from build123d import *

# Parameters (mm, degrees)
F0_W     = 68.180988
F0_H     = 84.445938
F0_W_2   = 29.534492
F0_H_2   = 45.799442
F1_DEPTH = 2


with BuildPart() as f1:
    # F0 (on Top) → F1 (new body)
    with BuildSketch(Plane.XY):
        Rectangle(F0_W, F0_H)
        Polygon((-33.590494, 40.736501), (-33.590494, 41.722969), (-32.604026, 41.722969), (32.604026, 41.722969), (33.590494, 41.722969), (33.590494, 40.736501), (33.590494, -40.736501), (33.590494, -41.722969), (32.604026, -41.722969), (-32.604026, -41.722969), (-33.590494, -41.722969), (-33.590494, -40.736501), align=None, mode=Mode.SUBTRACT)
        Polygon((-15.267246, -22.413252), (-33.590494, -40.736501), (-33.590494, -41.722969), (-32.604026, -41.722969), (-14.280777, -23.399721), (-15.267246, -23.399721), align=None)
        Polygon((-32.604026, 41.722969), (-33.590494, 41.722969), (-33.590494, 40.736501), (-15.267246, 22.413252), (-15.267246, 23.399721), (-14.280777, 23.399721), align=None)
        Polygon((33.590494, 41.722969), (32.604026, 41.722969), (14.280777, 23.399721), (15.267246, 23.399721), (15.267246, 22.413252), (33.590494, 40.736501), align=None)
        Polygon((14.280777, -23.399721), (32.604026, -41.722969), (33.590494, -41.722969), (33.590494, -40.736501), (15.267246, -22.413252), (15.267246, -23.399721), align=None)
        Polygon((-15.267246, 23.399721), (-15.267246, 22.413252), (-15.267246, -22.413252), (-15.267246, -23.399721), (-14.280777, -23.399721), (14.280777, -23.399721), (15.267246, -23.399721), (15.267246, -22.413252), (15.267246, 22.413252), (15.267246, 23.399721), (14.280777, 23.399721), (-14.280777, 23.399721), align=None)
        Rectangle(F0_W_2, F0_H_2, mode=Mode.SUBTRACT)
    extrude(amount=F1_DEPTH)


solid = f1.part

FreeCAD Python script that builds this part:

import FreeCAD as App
import Part
import Sketcher


def add_polygon(sketch, points):
    """Adds a closed chain of lines whose ends are joined by coincident constraints."""
    first, n = sketch.GeometryCount, len(points)
    for a, b in zip(points, points[1:] + points[:1]):
        sketch.addGeometry(Part.LineSegment(App.Vector(*a, 0), App.Vector(*b, 0)), False)
    for i in range(n):
        sketch.addConstraint(Sketcher.Constraint("Coincident", first + i, 2, first + (i + 1) % n, 1))

doc = App.newDocument("Part")
params = doc.addObject("Spreadsheet::Sheet", "Params")
for row, (alias, value) in enumerate([
    ("pad1_length", "2 mm"),
], start=1):
    params.set(f"A{row}", alias)
    params.set(f"B{row}", "=" + value)
    params.setAlias(f"B{row}", alias)

body = doc.addObject("PartDesign::Body", "Body")

# Sketch on XY plane
sketch1 = body.newObject("Sketcher::SketchObject", "Sketch")
sketch1.AttachmentSupport = (doc.getObject("XY_Plane"), [""])
sketch1.MapMode = "FlatFace"
add_polygon(sketch1, [(-34, 42), (-34, -42), (34, -42), (34, 42)])  # lines 0-3
add_polygon(sketch1, [(14, -23), (33, -42), (-33, -42), (-14, -23)])  # lines 4-7
add_polygon(sketch1, [(-34, -41), (-34, 41), (-15, 22), (-15, -22)])  # lines 8-11
add_polygon(sketch1, [(15, -23), (-15, -23), (-15, 23), (15, 23)])  # lines 12-15
add_polygon(sketch1, [(15, 22), (34, 41), (34, -41), (15, -22)])  # lines 16-19
add_polygon(sketch1, [(-14, 23), (-33, 42), (33, 42), (14, 23)])  # lines 20-23
sketch1.addConstraint([
    Sketcher.Constraint("Vertical", 0),
    Sketcher.Constraint("Horizontal", 1),
    Sketcher.Constraint("Vertical", 2),
    Sketcher.Constraint("Horizontal", 3),
    Sketcher.Constraint("Horizontal", 5),
    Sketcher.Constraint("Horizontal", 7),
    Sketcher.Constraint("Vertical", 8),
    Sketcher.Constraint("Vertical", 10),
    Sketcher.Constraint("Horizontal", 12),
    Sketcher.Constraint("Vertical", 13),
    Sketcher.Constraint("Horizontal", 14),
    Sketcher.Constraint("Vertical", 15),
    Sketcher.Constraint("Vertical", 17),
    Sketcher.Constraint("Vertical", 19),
    Sketcher.Constraint("Horizontal", 21),
    Sketcher.Constraint("Horizontal", 23),
    Sketcher.Constraint("Symmetric", 0, 2, 2, 2, -1, 1),
    Sketcher.Constraint("Symmetric", 12, 2, 14, 2, -1, 1),
    Sketcher.Constraint("Symmetric", 11, 2, 16, 2, -1, 1),
    Sketcher.Constraint("Symmetric", 9, 2, 18, 2, -1, 1),
    Sketcher.Constraint("Symmetric", 4, 2, 20, 2, -1, 1),
    Sketcher.Constraint("Symmetric", 6, 2, 22, 2, -1, 1),
    Sketcher.Constraint("Perpendicular", 4, 6),
    Sketcher.Constraint("Perpendicular", 6, 9),
    Sketcher.Constraint("Perpendicular", 9, 11),
    Sketcher.Constraint("Parallel", 11, 16),
    Sketcher.Constraint("Perpendicular", 16, 18),
    Sketcher.Constraint("Parallel", 18, 20),
    Sketcher.Constraint("Perpendicular", 20, 22),
    Sketcher.Constraint("Horizontal", 8, 2, 16, 2),
    Sketcher.Constraint("Horizontal", 10, 2, 18, 2),
    Sketcher.Constraint("Vertical", 5, 2, 20, 2),
    Sketcher.Constraint("Equal", 6, 9),
    Sketcher.Constraint("DistanceY", 1, 2, 4, 2, 0.5),
    Sketcher.Constraint("DistanceX", 3, 2, 8, 2, 0.5),
    Sketcher.Constraint("DistanceY", 6, 2, 12, 2, 0.5),
    Sketcher.Constraint("DistanceX", 10, 2, 12, 2, 0.5),
    Sketcher.Constraint("DistanceY", 8, 1, 8, 2, 81.473002),
    Sketcher.Constraint("DistanceX", 1, 1, 1, 2, 68.180988),
    Sketcher.Constraint("DistanceX", 5, 2, 5, 1, 65.208052),
    Sketcher.Constraint("DistanceX", 12, 2, 12, 1, 29.534492),
    Sketcher.Constraint("DistanceY", 0, 2, 0, 1, 84.445938),
])
pad1 = body.newObject("PartDesign::Pad", "Pad")
pad1.Profile = sketch1
pad1.setExpression("Length", "Params.pad1_length")

doc.recompute()
